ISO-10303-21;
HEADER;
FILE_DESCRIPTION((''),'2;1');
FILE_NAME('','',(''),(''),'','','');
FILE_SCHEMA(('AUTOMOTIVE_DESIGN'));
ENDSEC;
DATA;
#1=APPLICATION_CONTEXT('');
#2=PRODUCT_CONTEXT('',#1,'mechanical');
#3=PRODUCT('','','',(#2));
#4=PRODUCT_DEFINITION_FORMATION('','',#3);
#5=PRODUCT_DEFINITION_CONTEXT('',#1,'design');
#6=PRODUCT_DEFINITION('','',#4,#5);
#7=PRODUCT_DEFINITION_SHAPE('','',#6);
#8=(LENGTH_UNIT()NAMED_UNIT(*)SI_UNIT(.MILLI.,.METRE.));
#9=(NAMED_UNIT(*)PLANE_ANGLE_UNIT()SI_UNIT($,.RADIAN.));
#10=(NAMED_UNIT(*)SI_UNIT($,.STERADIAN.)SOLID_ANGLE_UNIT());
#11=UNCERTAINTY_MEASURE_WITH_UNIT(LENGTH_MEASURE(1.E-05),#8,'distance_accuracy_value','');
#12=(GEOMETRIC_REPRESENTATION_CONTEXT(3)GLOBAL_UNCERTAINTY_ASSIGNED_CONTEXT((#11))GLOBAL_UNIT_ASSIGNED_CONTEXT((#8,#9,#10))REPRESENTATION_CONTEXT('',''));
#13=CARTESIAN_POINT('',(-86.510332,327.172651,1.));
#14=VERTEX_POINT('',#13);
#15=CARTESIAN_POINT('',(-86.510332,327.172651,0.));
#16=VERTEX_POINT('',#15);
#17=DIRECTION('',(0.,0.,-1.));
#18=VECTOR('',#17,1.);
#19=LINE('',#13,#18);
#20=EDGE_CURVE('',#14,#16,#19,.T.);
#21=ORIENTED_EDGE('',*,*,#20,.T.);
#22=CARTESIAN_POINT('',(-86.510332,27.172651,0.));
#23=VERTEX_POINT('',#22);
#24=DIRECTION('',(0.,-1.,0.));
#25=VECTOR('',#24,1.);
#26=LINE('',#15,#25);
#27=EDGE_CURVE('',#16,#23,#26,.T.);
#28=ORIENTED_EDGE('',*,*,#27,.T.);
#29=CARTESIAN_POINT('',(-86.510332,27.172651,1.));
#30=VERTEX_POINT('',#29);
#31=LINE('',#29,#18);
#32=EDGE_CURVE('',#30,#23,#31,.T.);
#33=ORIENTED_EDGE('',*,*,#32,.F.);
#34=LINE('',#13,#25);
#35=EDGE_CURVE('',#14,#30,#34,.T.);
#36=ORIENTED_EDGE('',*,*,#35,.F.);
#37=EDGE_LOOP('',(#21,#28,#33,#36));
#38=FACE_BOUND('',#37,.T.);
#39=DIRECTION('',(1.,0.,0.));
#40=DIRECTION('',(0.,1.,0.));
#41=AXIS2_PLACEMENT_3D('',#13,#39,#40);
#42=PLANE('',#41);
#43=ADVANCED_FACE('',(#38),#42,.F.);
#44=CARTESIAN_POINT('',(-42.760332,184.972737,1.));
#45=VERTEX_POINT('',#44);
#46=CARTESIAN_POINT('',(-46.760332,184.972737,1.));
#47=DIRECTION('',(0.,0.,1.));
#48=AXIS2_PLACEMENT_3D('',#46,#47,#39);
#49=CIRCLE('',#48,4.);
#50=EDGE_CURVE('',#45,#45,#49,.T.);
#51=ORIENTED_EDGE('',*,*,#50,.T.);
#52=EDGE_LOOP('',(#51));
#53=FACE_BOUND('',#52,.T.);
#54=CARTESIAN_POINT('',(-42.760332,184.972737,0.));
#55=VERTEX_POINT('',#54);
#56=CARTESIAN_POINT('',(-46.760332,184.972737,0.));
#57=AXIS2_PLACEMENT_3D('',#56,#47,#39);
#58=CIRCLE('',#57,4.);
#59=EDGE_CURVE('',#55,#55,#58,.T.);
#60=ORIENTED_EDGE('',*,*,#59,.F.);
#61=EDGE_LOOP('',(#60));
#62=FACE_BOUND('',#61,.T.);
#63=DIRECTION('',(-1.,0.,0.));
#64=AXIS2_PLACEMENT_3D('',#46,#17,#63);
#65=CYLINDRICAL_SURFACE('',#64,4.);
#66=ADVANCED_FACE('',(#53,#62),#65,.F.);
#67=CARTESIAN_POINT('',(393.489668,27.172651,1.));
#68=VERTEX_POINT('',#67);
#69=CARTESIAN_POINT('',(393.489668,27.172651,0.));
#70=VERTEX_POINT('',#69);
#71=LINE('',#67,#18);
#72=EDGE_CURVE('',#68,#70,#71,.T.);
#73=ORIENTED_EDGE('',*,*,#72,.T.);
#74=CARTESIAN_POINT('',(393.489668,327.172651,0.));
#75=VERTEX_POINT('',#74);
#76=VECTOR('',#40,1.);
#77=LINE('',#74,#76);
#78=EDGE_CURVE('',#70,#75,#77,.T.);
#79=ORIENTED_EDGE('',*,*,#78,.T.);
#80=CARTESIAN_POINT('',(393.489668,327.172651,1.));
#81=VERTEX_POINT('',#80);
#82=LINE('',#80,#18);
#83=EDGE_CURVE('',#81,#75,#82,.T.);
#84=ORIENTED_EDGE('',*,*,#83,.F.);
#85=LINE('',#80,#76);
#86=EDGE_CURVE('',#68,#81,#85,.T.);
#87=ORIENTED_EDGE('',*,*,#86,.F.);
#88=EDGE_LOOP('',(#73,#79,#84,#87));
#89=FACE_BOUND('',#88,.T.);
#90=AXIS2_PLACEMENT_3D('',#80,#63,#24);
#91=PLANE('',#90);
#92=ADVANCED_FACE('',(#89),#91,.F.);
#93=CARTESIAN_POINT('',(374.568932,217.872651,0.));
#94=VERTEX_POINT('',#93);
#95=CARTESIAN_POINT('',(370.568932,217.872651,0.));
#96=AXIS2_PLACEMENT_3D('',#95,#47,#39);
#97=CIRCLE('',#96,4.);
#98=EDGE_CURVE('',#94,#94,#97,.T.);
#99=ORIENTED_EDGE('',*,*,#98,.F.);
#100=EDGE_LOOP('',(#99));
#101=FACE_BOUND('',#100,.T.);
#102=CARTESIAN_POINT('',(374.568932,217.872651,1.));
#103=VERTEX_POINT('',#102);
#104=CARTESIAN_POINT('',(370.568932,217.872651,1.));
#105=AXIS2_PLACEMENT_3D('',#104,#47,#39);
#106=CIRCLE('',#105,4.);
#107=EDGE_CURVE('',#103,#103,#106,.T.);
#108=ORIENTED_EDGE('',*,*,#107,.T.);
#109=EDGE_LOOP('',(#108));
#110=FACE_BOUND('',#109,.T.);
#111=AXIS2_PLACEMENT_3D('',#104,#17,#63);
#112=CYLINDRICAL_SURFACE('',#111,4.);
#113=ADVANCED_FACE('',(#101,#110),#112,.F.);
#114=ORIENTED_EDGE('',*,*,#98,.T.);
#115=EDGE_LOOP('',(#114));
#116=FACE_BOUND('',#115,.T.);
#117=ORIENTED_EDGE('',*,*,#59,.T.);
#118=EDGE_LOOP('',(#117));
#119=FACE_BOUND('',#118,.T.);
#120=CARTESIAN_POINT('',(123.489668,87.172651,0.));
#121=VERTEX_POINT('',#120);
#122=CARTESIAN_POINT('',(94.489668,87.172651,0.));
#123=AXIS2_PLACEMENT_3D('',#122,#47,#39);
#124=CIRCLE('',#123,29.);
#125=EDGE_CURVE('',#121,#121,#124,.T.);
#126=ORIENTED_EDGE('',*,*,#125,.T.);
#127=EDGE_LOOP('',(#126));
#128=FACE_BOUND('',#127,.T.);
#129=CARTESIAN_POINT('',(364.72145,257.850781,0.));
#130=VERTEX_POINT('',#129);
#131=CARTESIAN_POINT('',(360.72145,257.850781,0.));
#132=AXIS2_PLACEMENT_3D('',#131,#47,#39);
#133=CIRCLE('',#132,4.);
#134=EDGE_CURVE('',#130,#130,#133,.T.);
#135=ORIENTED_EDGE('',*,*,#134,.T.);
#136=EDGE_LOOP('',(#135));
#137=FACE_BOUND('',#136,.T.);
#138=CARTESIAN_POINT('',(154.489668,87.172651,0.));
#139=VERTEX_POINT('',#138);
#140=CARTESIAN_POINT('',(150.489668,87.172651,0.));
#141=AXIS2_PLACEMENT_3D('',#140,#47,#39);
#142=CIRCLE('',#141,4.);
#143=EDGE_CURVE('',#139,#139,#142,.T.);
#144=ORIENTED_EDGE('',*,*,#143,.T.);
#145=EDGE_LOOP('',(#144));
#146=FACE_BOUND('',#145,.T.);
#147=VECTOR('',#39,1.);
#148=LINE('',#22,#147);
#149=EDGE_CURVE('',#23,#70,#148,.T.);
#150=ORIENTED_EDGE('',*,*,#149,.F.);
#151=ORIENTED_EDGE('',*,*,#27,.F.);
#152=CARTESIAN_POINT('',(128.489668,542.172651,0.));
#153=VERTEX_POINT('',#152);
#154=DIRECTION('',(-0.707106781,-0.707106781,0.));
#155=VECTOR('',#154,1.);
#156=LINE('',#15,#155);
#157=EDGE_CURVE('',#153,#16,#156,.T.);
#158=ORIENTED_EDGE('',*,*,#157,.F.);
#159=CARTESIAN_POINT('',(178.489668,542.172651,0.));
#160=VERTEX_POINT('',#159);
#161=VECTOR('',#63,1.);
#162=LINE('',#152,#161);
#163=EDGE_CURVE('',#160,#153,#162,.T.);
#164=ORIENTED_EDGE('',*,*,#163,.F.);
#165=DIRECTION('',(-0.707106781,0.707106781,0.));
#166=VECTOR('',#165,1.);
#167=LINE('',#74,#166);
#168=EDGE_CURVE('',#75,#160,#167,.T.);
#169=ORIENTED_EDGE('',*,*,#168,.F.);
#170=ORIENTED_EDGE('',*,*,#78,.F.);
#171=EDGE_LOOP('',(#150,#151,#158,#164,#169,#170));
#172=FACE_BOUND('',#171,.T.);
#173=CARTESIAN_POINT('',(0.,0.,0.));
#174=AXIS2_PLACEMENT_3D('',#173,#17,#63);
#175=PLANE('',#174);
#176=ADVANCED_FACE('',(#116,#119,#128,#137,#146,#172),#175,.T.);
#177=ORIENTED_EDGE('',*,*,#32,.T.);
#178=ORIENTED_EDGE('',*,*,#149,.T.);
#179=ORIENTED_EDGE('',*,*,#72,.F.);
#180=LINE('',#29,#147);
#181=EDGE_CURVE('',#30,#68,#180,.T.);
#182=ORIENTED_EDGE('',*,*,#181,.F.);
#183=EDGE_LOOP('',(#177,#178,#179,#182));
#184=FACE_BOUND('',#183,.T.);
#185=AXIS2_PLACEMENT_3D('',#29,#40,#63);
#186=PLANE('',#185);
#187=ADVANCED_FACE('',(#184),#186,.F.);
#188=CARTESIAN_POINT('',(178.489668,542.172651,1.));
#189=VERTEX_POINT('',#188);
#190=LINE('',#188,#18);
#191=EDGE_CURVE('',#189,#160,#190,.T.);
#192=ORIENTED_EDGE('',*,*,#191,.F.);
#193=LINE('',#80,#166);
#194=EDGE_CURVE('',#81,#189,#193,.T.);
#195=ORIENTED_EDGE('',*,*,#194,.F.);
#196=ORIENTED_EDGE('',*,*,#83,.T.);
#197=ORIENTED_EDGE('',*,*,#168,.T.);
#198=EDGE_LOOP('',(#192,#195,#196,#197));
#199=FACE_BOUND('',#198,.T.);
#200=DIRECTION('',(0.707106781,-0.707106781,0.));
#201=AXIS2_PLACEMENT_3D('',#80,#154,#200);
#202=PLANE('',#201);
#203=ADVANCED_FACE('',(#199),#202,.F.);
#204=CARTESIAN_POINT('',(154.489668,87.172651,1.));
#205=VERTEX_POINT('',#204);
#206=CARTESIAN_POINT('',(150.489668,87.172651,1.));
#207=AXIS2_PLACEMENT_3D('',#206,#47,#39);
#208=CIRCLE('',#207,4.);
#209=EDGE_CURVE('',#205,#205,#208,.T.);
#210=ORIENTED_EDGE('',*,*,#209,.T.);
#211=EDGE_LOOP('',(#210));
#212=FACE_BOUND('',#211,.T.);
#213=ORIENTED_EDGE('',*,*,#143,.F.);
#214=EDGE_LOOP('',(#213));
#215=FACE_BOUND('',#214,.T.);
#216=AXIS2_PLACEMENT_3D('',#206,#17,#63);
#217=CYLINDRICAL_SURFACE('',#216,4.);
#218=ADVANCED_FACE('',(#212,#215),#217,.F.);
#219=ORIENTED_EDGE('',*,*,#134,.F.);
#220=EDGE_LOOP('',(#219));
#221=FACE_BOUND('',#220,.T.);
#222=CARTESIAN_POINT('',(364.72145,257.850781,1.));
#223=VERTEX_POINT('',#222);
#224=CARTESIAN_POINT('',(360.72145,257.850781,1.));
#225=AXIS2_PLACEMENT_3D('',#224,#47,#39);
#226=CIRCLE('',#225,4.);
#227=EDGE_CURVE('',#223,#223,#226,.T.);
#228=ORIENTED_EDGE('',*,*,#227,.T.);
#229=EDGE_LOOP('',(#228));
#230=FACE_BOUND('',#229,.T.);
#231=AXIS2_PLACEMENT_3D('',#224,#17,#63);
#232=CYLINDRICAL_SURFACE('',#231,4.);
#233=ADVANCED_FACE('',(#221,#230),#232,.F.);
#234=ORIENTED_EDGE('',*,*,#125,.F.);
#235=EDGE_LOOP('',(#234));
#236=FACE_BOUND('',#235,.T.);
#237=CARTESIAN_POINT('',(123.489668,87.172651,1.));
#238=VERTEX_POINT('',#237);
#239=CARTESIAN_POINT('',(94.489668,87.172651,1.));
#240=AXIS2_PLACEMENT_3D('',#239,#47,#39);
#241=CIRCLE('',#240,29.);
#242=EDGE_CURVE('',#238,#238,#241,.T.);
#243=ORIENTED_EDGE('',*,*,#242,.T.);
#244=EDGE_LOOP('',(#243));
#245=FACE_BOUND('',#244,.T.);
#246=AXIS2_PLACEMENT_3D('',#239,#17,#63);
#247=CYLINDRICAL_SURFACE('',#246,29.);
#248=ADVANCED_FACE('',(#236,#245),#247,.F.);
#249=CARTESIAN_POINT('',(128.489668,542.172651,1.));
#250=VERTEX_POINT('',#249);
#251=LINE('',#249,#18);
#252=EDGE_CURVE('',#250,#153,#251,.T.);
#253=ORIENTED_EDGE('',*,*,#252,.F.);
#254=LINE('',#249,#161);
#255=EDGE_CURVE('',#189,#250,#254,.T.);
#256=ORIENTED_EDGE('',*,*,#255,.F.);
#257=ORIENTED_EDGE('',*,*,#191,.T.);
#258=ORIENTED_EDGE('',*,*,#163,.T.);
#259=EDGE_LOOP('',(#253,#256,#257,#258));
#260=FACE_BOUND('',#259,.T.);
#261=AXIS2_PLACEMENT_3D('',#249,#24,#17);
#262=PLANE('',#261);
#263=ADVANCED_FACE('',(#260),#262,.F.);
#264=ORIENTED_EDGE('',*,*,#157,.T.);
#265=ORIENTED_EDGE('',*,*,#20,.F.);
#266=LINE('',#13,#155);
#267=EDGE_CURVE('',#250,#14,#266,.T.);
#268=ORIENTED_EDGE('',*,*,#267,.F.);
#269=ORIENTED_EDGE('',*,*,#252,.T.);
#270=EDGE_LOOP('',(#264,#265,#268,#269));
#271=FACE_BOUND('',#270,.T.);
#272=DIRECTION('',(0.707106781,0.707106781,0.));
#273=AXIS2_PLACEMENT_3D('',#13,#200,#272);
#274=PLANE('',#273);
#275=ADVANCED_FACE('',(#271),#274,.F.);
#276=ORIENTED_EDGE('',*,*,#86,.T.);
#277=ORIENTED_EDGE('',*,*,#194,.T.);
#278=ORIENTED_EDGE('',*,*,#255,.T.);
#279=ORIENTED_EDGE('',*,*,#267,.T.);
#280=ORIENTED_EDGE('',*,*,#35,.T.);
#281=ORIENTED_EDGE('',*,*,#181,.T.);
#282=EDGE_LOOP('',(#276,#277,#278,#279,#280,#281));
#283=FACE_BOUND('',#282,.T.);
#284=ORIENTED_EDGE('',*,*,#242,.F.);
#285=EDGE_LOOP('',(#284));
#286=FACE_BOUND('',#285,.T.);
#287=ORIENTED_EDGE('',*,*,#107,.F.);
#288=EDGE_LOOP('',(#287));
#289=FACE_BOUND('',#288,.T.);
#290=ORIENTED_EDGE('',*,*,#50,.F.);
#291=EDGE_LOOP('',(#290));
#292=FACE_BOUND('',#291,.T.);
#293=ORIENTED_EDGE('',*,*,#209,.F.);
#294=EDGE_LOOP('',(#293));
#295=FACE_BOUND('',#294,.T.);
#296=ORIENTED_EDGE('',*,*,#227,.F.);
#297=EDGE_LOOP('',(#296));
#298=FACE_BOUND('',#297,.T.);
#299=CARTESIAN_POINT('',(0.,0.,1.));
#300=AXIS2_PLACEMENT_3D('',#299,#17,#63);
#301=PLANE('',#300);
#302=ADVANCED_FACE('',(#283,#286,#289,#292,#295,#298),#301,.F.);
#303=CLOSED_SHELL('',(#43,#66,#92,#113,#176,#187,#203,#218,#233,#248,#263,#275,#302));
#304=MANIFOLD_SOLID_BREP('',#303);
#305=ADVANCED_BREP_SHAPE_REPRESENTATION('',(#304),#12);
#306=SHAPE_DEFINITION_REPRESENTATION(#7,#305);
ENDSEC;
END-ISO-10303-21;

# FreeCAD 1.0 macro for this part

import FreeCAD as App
import Part
import Sketcher
from FreeCAD import Vector

doc = App.newDocument("Part")
body = doc.addObject("PartDesign::Body", "Body")

# Sketch on XY plane
sketch1 = body.newObject("Sketcher::SketchObject", "Sketch")
sketch1.AttachmentSupport = (doc.getObject("XY_Plane"), [""])
sketch1.MapMode = "FlatFace"
sketch1.addGeometry([
    Part.LineSegment(Vector(-86.5, 327.2, 0), Vector(-86.5, 27.2, 0)),  # 0
    Part.LineSegment(Vector(-86.5, 27.2, 0), Vector(393.5, 27.2, 0)),  # 1
    Part.LineSegment(Vector(393.5, 27.2, 0), Vector(393.5, 327.2, 0)),  # 2
    Part.LineSegment(Vector(393.5, 327.2, 0), Vector(178.5, 542.2, 0)),  # 3
    Part.LineSegment(Vector(178.5, 542.2, 0), Vector(128.5, 542.2, 0)),  # 4
    Part.LineSegment(Vector(128.5, 542.2, 0), Vector(-86.5, 327.2, 0)),  # 5
    Part.Circle(Vector(94.5, 87.2, 0), Vector(0, 0, 1), 29),  # 6
    Part.Circle(Vector(150.5, 87.2, 0), Vector(0, 0, 1), 4),  # 7
    Part.Circle(Vector(-46.8, 185, 0), Vector(0, 0, 1), 4),  # 8
    Part.Circle(Vector(370.6, 217.9, 0), Vector(0, 0, 1), 4),  # 9
    Part.Circle(Vector(360.7, 257.9, 0), Vector(0, 0, 1), 4),  # 10
], False)
sketch1.addConstraint([
    Sketcher.Constraint("Coincident", 0, 2, 1, 1),
    Sketcher.Constraint("Coincident", 1, 2, 2, 1),
    Sketcher.Constraint("Coincident", 2, 2, 3, 1),
    Sketcher.Constraint("Coincident", 3, 2, 4, 1),
    Sketcher.Constraint("Coincident", 4, 2, 5, 1),
    Sketcher.Constraint("Coincident", 5, 2, 0, 1),
    Sketcher.Constraint("Vertical", 0),
    Sketcher.Constraint("Horizontal", 1),
    Sketcher.Constraint("Vertical", 2),
    Sketcher.Constraint("Horizontal", 4),
    Sketcher.Constraint("Equal", 7, 8),
    Sketcher.Constraint("Equal", 8, 9),
    Sketcher.Constraint("Equal", 9, 10),
    Sketcher.Constraint("Perpendicular", 3, 5),
    Sketcher.Constraint("Horizontal", 6, 3, 7, 3),
    Sketcher.Constraint("Horizontal", 2, 2, 5, 2),
    Sketcher.Constraint("Equal", 3, 5),
    Sketcher.Constraint("Diameter", 6, 58.0),
    Sketcher.Constraint("Diameter", 7, 8.0),
    Sketcher.Constraint("DistanceX", 1, 1, 1, 2, 480.0),
    Sketcher.Constraint("DistanceX", 4, 2, 4, 1, 50.0),
    Sketcher.Constraint("DistanceY", 0, 2, 0, 1, 300.0),
    Sketcher.Constraint("DistanceX", 6, 3, 7, 3, 56.0),
    Sketcher.Constraint("DistanceX", 0, 2, 6, 3, 181.0),
    Sketcher.Constraint("DistanceY", 0, 2, 6, 3, 60.0),
    Sketcher.Constraint("DistanceY", 7, 3, 9, 3, 130.7),
    Sketcher.Constraint("DistanceX", 8, 3, 6, 3, 141.25),
    Sketcher.Constraint("DistanceX", -1, 1, 6, 3, 94.489668),
    Sketcher.Constraint("DistanceY", -1, 1, 6, 3, 87.172651),
    Sketcher.Constraint("DistanceX", -1, 1, 10, 3, 360.72145),
    Sketcher.Constraint("DistanceY", -1, 1, 10, 3, 257.850781),
    Sketcher.Constraint("DistanceY", -1, 1, 8, 3, 184.972737),
    Sketcher.Constraint("DistanceX", -1, 1, 9, 3, 370.568932),
])
pad1 = body.newObject("PartDesign::Pad", "Pad")
pad1.Profile = sketch1
pad1.Length = 1

doc.recompute()
